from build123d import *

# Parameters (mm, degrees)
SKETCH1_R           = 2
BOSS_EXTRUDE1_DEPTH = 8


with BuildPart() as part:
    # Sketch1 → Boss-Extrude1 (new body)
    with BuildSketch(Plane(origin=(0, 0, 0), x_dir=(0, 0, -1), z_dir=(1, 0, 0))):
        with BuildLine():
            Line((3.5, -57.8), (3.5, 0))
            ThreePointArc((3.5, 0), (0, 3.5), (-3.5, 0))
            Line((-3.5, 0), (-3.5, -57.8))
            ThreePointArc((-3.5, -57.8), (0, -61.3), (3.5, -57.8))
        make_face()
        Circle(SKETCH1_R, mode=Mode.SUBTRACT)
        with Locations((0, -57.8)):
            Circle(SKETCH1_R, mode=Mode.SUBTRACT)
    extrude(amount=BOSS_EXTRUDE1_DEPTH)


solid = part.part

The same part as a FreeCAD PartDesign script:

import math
import FreeCAD as App
import Part
import Sketcher
from FreeCAD import Vector

doc = App.newDocument("Part")
body = doc.addObject("PartDesign::Body", "Body")

# Sketch on YZ plane
sketch1 = body.newObject("Sketcher::SketchObject", "Sketch")
sketch1.AttachmentSupport = (doc.getObject("YZ_Plane"), [""])
sketch1.MapMode = "FlatFace"
sketch1.addGeometry([
    Part.LineSegment(Vector(-57.8, -3.5, 0), Vector(0, -3.5, 0)),  # 0
    Part.ArcOfCircle(Part.Circle(Vector(0, 0, 0), Vector(0, 0, 1), 3.5), math.radians(-90), math.radians(90)),  # 1
    Part.LineSegment(Vector(0, 3.5, 0), Vector(-57.8, 3.5, 0)),  # 2
    Part.ArcOfCircle(Part.Circle(Vector(-57.8, 0, 0), Vector(0, 0, 1), 3.5), math.radians(90), math.radians(270)),  # 3
    Part.Circle(Vector(-57.8, 0, 0), Vector(0, 0, 1), 2),  # 4
    Part.Circle(Vector(0, 0, 0), Vector(0, 0, 1), 2),  # 5
], False)
sketch1.addConstraint([
    Sketcher.Constraint("Tangent", 0, 2, 1, 1),
    Sketcher.Constraint("Tangent", 1, 2, 2, 1),
    Sketcher.Constraint("Tangent", 2, 2, 3, 1),
    Sketcher.Constraint("Tangent", 3, 2, 0, 1),
    Sketcher.Constraint("Horizontal", 0),
    Sketcher.Constraint("Horizontal", 2),
    Sketcher.Constraint("Coincident", 1, 3, -1, 1),
    Sketcher.Constraint("Coincident", 5, 3, -1, 1),
    Sketcher.Constraint("Coincident", 4, 3, 3, 3),
    Sketcher.Constraint("Equal", 4, 5),
    Sketcher.Constraint("Diameter", 4, 4.0),
    Sketcher.Constraint("Radius", 1, 3.5),
    Sketcher.Constraint("DistanceX", 0, 1, 0, 2, 57.8),
])
pad1 = body.newObject("PartDesign::Pad", "Pad")
pad1.Profile = sketch1
pad1.Length = 8

doc.recompute()
